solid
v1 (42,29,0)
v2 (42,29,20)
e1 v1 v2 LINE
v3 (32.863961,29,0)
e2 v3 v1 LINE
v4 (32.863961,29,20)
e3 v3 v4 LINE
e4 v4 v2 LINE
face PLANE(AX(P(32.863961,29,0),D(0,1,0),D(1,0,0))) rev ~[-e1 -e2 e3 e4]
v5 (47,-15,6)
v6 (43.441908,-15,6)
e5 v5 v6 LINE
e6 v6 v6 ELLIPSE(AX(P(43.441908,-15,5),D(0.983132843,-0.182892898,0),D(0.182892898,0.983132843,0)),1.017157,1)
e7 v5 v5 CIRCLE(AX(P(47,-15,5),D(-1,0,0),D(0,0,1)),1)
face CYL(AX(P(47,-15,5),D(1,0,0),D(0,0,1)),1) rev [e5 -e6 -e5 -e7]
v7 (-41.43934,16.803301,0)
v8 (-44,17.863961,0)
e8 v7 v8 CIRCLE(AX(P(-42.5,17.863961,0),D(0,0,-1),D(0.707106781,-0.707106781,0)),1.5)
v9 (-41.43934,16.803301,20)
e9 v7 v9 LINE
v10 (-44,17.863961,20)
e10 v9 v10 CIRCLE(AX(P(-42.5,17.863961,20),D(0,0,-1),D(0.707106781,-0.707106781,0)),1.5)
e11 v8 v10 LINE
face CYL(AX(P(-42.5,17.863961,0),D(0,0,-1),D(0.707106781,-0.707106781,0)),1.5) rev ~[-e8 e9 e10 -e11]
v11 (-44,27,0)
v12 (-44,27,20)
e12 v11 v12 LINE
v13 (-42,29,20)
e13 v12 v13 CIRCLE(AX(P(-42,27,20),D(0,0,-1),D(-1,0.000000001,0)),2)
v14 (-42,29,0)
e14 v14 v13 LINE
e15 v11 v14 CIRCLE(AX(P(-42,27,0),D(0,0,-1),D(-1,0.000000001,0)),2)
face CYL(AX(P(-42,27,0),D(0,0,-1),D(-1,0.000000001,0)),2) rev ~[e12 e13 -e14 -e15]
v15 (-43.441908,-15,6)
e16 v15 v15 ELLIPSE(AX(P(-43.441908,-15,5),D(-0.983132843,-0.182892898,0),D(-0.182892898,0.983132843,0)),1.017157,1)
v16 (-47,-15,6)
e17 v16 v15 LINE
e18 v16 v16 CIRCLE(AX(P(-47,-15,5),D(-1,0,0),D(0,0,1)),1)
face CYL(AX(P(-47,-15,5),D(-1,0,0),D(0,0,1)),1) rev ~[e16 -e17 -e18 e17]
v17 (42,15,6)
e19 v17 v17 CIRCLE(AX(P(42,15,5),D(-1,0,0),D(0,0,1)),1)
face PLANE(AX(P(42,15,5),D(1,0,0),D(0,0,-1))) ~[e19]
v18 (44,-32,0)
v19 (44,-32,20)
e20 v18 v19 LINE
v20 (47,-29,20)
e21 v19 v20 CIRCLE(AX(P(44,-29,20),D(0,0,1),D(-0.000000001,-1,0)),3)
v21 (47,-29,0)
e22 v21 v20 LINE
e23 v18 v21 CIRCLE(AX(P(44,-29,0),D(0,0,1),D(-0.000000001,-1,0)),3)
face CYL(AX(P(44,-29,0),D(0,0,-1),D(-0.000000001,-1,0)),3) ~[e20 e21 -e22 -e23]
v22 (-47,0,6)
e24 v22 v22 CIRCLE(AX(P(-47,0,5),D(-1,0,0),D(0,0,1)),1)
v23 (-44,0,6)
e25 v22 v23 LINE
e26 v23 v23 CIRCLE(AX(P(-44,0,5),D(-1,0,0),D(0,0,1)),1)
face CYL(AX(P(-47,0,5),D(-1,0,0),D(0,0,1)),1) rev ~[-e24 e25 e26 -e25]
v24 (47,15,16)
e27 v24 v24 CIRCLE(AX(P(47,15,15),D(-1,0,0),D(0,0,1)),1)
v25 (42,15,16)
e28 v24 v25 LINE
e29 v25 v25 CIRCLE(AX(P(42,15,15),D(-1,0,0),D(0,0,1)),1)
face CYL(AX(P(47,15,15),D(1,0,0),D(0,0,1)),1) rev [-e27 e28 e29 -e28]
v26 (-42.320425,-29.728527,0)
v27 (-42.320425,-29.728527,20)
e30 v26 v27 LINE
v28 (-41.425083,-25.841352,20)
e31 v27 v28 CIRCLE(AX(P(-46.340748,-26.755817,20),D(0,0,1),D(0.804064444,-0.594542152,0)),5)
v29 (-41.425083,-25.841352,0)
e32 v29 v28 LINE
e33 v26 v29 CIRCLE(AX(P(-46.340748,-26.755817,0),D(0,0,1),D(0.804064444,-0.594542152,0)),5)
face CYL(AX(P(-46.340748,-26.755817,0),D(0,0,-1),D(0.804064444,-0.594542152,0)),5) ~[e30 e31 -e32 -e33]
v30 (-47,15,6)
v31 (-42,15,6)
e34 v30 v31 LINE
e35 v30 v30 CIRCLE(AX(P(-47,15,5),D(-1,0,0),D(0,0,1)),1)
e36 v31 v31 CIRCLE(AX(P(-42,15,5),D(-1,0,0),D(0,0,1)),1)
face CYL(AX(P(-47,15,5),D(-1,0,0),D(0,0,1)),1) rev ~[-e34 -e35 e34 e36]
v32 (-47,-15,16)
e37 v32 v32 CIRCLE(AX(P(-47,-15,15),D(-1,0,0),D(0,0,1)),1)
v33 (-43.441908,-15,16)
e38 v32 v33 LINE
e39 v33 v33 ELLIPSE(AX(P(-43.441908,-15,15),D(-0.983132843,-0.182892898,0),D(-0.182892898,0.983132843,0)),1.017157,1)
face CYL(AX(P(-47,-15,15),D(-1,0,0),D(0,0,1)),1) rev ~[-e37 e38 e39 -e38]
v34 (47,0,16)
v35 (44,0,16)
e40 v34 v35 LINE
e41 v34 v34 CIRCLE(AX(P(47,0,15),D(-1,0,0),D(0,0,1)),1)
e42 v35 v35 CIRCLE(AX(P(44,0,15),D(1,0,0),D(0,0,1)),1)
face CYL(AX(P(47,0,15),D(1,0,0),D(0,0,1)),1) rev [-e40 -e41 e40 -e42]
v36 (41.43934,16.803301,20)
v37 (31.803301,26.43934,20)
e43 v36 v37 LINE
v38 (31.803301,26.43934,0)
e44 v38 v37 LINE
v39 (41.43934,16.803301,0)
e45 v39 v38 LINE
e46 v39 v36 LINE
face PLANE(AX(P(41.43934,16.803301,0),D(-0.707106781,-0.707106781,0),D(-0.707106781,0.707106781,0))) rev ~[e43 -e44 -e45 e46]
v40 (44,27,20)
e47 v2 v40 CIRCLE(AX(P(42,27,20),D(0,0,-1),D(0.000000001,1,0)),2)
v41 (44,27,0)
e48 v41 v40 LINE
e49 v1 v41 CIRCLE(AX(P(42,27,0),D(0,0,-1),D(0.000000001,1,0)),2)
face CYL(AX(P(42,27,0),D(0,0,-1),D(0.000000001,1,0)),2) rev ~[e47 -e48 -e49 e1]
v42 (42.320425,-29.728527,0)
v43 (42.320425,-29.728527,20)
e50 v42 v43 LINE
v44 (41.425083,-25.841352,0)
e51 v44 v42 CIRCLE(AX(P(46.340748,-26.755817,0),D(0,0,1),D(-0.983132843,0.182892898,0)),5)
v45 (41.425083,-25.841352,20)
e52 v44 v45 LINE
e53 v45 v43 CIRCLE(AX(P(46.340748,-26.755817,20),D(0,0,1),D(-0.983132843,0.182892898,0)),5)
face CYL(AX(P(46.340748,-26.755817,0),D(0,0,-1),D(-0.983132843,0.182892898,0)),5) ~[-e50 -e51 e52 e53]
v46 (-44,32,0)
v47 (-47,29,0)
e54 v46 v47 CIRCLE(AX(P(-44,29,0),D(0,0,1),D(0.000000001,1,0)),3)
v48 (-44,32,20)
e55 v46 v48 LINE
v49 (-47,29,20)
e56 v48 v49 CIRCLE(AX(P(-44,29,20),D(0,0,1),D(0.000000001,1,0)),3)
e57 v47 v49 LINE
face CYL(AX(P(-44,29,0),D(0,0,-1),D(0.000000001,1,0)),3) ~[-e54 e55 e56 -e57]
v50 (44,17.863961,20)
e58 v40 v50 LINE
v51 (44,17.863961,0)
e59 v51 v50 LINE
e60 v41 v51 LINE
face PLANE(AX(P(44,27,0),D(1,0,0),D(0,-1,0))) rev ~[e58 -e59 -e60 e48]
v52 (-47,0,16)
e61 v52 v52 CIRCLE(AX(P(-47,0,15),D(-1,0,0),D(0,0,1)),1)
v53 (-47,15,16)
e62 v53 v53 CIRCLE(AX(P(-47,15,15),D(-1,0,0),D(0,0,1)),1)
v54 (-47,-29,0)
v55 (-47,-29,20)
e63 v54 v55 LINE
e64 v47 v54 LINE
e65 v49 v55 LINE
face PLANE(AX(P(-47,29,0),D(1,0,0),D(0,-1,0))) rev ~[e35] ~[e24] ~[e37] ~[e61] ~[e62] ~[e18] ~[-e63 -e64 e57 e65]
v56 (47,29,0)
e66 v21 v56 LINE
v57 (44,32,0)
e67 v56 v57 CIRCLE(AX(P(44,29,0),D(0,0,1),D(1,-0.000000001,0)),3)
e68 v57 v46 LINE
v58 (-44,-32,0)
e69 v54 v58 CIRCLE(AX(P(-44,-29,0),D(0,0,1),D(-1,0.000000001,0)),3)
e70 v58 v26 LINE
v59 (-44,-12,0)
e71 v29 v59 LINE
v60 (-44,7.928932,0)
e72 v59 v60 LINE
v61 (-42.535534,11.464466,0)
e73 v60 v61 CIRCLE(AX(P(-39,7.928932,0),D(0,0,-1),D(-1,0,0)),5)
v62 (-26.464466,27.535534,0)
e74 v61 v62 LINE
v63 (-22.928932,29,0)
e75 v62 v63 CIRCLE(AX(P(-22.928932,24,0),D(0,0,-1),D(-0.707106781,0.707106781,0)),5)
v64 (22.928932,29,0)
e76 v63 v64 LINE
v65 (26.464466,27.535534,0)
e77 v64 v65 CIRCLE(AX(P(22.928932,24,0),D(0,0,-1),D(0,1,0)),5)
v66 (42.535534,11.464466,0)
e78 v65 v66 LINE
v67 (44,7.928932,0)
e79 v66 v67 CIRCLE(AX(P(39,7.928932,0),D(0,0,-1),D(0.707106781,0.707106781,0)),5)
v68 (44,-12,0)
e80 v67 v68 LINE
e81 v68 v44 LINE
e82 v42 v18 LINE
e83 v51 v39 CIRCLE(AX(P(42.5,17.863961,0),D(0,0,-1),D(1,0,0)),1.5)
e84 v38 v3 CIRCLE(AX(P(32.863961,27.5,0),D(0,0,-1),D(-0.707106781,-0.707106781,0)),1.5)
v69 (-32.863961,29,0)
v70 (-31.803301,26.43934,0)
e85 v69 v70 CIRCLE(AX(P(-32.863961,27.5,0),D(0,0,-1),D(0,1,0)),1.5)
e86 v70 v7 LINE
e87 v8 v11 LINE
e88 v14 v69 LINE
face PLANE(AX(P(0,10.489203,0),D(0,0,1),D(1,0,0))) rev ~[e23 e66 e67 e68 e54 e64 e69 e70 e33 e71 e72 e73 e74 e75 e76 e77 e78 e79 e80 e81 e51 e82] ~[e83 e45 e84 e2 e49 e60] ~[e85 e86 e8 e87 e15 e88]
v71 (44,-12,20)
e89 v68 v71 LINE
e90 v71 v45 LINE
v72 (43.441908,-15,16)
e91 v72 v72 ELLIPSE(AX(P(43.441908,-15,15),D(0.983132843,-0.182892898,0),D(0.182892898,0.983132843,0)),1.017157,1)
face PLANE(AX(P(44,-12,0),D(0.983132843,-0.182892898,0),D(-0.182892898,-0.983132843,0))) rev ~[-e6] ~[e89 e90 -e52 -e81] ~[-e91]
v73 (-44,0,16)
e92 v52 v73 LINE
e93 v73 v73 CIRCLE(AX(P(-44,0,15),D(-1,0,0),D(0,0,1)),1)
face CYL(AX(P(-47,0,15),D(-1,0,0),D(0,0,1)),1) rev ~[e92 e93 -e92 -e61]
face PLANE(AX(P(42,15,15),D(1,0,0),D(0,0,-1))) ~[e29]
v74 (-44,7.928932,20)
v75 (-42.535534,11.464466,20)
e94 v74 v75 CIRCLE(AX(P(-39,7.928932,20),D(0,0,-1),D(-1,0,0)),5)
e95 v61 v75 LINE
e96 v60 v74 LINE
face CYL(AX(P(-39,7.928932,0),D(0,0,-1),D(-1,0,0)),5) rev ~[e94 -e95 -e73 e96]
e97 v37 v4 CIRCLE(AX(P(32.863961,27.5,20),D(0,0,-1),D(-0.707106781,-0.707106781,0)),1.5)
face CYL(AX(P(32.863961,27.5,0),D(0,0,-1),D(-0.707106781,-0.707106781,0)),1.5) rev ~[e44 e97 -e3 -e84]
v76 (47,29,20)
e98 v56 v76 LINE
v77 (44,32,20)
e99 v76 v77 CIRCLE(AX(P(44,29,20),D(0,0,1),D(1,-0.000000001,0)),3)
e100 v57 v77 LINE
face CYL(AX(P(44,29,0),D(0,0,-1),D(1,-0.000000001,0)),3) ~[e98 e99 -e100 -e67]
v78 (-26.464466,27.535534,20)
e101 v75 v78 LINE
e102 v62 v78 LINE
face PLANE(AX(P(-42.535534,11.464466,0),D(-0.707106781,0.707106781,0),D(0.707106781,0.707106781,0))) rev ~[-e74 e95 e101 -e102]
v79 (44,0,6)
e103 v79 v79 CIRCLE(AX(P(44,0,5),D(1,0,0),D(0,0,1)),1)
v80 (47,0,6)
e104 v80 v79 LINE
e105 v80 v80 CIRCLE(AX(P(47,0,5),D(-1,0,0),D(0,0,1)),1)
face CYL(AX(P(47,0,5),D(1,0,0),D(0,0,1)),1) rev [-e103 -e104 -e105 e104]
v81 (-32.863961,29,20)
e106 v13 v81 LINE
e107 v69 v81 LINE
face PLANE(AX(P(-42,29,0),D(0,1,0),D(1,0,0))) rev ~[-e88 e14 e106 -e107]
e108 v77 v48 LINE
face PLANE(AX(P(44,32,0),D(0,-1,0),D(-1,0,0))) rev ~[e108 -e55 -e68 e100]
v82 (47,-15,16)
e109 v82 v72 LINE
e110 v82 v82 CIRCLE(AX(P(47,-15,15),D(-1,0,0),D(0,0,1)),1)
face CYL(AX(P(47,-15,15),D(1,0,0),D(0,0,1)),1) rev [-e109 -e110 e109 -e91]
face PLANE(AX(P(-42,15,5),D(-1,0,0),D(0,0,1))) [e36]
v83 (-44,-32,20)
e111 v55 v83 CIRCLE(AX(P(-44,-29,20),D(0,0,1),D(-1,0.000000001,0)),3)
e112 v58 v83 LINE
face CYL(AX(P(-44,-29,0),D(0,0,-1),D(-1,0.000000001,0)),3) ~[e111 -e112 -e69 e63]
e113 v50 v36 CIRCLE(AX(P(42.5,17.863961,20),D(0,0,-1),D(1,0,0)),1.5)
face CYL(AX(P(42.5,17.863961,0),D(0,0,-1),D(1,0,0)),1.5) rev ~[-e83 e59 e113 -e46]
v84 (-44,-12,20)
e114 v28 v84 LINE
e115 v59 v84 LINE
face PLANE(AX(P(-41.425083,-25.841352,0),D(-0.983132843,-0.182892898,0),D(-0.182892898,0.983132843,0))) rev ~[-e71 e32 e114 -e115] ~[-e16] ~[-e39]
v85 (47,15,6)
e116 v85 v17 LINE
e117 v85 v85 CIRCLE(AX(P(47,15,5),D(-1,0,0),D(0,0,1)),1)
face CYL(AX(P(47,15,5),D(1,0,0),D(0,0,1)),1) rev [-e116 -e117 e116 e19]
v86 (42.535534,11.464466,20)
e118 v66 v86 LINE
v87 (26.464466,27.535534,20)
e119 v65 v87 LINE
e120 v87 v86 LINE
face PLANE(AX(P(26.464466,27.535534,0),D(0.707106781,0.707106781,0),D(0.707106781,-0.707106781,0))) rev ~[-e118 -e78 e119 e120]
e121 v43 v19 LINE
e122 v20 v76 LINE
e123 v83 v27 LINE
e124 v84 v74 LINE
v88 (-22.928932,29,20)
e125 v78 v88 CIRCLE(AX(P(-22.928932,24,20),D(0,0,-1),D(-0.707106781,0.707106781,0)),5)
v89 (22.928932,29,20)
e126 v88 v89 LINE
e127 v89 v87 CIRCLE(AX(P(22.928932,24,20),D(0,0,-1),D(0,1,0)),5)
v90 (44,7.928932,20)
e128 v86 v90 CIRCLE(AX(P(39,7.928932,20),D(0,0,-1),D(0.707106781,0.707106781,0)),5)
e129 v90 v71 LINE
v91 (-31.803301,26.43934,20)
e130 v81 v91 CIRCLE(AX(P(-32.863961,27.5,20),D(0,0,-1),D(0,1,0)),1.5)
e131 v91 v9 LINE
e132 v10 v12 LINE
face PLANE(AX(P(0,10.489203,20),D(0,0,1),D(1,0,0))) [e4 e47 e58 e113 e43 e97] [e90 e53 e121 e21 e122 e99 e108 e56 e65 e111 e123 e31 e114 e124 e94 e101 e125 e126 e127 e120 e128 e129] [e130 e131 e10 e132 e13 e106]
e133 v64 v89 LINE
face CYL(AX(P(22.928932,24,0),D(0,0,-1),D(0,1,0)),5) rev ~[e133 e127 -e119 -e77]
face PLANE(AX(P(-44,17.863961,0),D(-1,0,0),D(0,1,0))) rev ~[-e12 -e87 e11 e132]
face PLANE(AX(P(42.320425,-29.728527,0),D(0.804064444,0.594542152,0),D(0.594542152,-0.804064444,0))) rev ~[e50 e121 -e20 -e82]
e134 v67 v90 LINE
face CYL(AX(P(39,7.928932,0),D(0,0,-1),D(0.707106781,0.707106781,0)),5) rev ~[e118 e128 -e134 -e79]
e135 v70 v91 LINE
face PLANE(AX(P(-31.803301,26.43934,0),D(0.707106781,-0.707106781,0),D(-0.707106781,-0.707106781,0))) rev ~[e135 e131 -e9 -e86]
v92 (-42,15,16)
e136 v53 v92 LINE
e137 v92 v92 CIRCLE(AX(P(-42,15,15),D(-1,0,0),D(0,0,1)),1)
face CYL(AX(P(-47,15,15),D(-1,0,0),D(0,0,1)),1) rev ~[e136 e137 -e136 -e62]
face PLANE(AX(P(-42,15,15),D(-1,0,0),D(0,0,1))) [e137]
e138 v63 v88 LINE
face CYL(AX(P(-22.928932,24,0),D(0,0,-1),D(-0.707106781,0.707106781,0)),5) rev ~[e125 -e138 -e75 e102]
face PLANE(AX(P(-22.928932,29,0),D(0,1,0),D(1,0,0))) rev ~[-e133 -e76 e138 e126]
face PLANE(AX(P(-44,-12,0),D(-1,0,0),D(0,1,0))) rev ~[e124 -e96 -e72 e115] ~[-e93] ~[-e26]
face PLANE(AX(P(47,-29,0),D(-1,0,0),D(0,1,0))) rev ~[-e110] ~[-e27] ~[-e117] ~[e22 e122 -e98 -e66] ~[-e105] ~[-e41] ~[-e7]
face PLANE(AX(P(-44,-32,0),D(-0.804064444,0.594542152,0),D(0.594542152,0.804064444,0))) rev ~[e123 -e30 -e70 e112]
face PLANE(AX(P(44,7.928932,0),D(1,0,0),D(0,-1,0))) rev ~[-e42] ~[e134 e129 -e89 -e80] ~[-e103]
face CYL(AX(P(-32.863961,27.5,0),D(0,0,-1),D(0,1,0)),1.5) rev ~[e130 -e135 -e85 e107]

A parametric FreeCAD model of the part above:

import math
import FreeCAD as App
import Part
import Sketcher
Q = App.Units.Quantity

doc = App.newDocument("Part")
body = doc.addObject("PartDesign::Body", "Body")

sketch1 = doc.addObject("Sketcher::SketchObject", "Sketch")
body.addObject(sketch1)
sketch1.AttachmentSupport = (doc.XY_Plane, [""])
sketch1.MapMode = "FlatFace"
sketch1.addGeometry([
    Part.ArcOfCircle(Part.Circle(App.Vector(-44, -29, 0), App.Vector(0, 0, 1), 3), math.radians(180), math.radians(270)),
    Part.LineSegment(App.Vector(-44, -32, 0), App.Vector(-42.320425, -29.728527, 0)),
    Part.ArcOfCircle(Part.Circle(App.Vector(-46.340748, -26.755817, 0), App.Vector(0, 0, 1), 5), math.radians(-36.48), math.radians(10.538308)),
    Part.LineSegment(App.Vector(-41.425083, -25.841352, 0), App.Vector(-44, -12, 0)),
    Part.LineSegment(App.Vector(-44, -12, 0), App.Vector(-44, 7.928932, 0)),
    Part.ArcOfCircle(Part.Circle(App.Vector(-39, 7.928932, 0), App.Vector(0, 0, 1), 5), math.radians(135), math.radians(180)),
    Part.LineSegment(App.Vector(-42.535534, 11.464466, 0), App.Vector(-26.464466, 27.535534, 0)),
    Part.ArcOfCircle(Part.Circle(App.Vector(-22.928932, 24, 0), App.Vector(0, 0, 1), 5), math.radians(90), math.radians(135)),
    Part.LineSegment(App.Vector(-22.928932, 29, 0), App.Vector(22.928932, 29, 0)),
    Part.ArcOfCircle(Part.Circle(App.Vector(22.928932, 24, 0), App.Vector(0, 0, 1), 5), math.radians(45), math.radians(90)),
    Part.LineSegment(App.Vector(26.464466, 27.535534, 0), App.Vector(42.535534, 11.464466, 0)),
    Part.ArcOfCircle(Part.Circle(App.Vector(39, 7.928932, 0), App.Vector(0, 0, 1), 5), math.radians(0), math.radians(45)),
    Part.LineSegment(App.Vector(44, 7.928932, 0), App.Vector(44, -12, 0)),
    Part.LineSegment(App.Vector(44, -12, 0), App.Vector(41.425083, -25.841352, 0)),
    Part.ArcOfCircle(Part.Circle(App.Vector(46.340748, -26.755817, 0), App.Vector(0, 0, 1), 5), math.radians(169.461692), math.radians(216.48)),
    Part.LineSegment(App.Vector(42.320425, -29.728527, 0), App.Vector(44, -32, 0)),
    Part.ArcOfCircle(Part.Circle(App.Vector(44, -29, 0), App.Vector(0, 0, 1), 3), math.radians(-90), math.radians(0)),
    Part.LineSegment(App.Vector(47, -29, 0), App.Vector(47, 29, 0)),
    Part.ArcOfCircle(Part.Circle(App.Vector(44, 29, 0), App.Vector(0, 0, 1), 3), math.radians(0), math.radians(90)),
    Part.LineSegment(App.Vector(44, 32, 0), App.Vector(-44, 32, 0)),
    Part.ArcOfCircle(Part.Circle(App.Vector(-44, 29, 0), App.Vector(0, 0, 1), 3), math.radians(90), math.radians(180)),
    Part.LineSegment(App.Vector(-47, 29, 0), App.Vector(-47, -29, 0)),
    Part.LineSegment(App.Vector(-44, 17.863961, 0), App.Vector(-44, 27, 0)),
    Part.ArcOfCircle(Part.Circle(App.Vector(-42, 27, 0), App.Vector(0, 0, 1), 2), math.radians(90), math.radians(180)),
    Part.LineSegment(App.Vector(-42, 29, 0), App.Vector(-32.863961, 29, 0)),
    Part.ArcOfCircle(Part.Circle(App.Vector(-32.863961, 27.5, 0), App.Vector(0, 0, 1), 1.5), math.radians(-45), math.radians(90)),
    Part.LineSegment(App.Vector(-31.803301, 26.43934, 0), App.Vector(-41.43934, 16.803301, 0)),
    Part.ArcOfCircle(Part.Circle(App.Vector(-42.5, 17.863961, 0), App.Vector(0, 0, 1), 1.5), math.radians(180), math.radians(315)),
    Part.LineSegment(App.Vector(32.863961, 29, 0), App.Vector(42, 29, 0)),
    Part.ArcOfCircle(Part.Circle(App.Vector(42, 27, 0), App.Vector(0, 0, 1), 2), math.radians(0), math.radians(90)),
    Part.LineSegment(App.Vector(44, 27, 0), App.Vector(44, 17.863961, 0)),
    Part.ArcOfCircle(Part.Circle(App.Vector(42.5, 17.863961, 0), App.Vector(0, 0, 1), 1.5), math.radians(-135), math.radians(0)),
    Part.LineSegment(App.Vector(41.43934, 16.803301, 0), App.Vector(31.803301, 26.43934, 0)),
    Part.ArcOfCircle(Part.Circle(App.Vector(32.863961, 27.5, 0), App.Vector(0, 0, 1), 1.5), math.radians(90), math.radians(225)),
], False)
sketch1.addConstraint([
    Sketcher.Constraint("Coincident", 0, 2, 1, 1),
    Sketcher.Constraint("Tangent", 1, 2, 2, 1),
    Sketcher.Constraint("Tangent", 2, 2, 3, 1),
    Sketcher.Constraint("Coincident", 3, 2, 4, 1),
    Sketcher.Constraint("Tangent", 4, 2, 5, 2),
    Sketcher.Constraint("Tangent", 5, 1, 6, 1),
    Sketcher.Constraint("Tangent", 6, 2, 7, 2),
    Sketcher.Constraint("Tangent", 7, 1, 8, 1),
    Sketcher.Constraint("Tangent", 8, 2, 9, 2),
    Sketcher.Constraint("Tangent", 9, 1, 10, 1),
    Sketcher.Constraint("Tangent", 10, 2, 11, 2),
    Sketcher.Constraint("Tangent", 11, 1, 12, 1),
    Sketcher.Constraint("Coincident", 12, 2, 13, 1),
    Sketcher.Constraint("Tangent", 13, 2, 14, 1),
    Sketcher.Constraint("Tangent", 14, 2, 15, 1),
    Sketcher.Constraint("Coincident", 15, 2, 16, 1),
    Sketcher.Constraint("Tangent", 16, 2, 17, 1),
    Sketcher.Constraint("Tangent", 17, 2, 18, 1),
    Sketcher.Constraint("Tangent", 18, 2, 19, 1),
    Sketcher.Constraint("Tangent", 19, 2, 20, 1),
    Sketcher.Constraint("Tangent", 20, 2, 21, 1),
    Sketcher.Constraint("Tangent", 21, 2, 0, 1),
    Sketcher.Constraint("Tangent", 22, 2, 23, 2),
    Sketcher.Constraint("Tangent", 23, 1, 24, 1),
    Sketcher.Constraint("Tangent", 24, 2, 25, 2),
    Sketcher.Constraint("Tangent", 25, 1, 26, 1),
    Sketcher.Constraint("Tangent", 26, 2, 27, 2),
    Sketcher.Constraint("Tangent", 27, 1, 22, 1),
    Sketcher.Constraint("Tangent", 28, 2, 29, 2),
    Sketcher.Constraint("Tangent", 29, 1, 30, 1),
    Sketcher.Constraint("Tangent", 30, 2, 31, 2),
    Sketcher.Constraint("Tangent", 31, 1, 32, 1),
    Sketcher.Constraint("Tangent", 32, 2, 33, 2),
    Sketcher.Constraint("Tangent", 33, 1, 28, 1),
    Sketcher.Constraint("Vertical", 4),
    Sketcher.Constraint("Horizontal", 8),
    Sketcher.Constraint("Vertical", 12),
    Sketcher.Constraint("Vertical", 17),
    Sketcher.Constraint("Horizontal", 19),
    Sketcher.Constraint("Vertical", 21),
    Sketcher.Constraint("Vertical", 22),
    Sketcher.Constraint("Horizontal", 24),
    Sketcher.Constraint("Horizontal", 28),
    Sketcher.Constraint("Vertical", 30),
    Sketcher.Constraint("Equal", 2, 5),
    Sketcher.Constraint("Equal", 5, 7),
    Sketcher.Constraint("Equal", 7, 9),
    Sketcher.Constraint("Equal", 9, 11),
    Sketcher.Constraint("Equal", 11, 14),
    Sketcher.Constraint("Equal", 0, 16),
    Sketcher.Constraint("Equal", 16, 18),
    Sketcher.Constraint("Equal", 18, 20),
    Sketcher.Constraint("Equal", 25, 27),
    Sketcher.Constraint("Equal", 23, 29),
    Sketcher.Constraint("Equal", 27, 31),
    Sketcher.Constraint("Equal", 31, 33),
    Sketcher.Constraint("Symmetric", 0, 3, 18, 3, -1, 1),
    Sketcher.Constraint("Symmetric", 15, 2, 19, 2, -1, 1),
    Sketcher.Constraint("Symmetric", 5, 3, 11, 3, -2),
    Sketcher.Constraint("Symmetric", 2, 3, 14, 3, -2),
    Sketcher.Constraint("Symmetric", 23, 3, 29, 3, -2),
    Sketcher.Constraint("Symmetric", 26, 2, 31, 1, -2),
    Sketcher.Constraint("Perpendicular", 6, 10),
    Sketcher.Constraint("Perpendicular", 10, 26),
    Sketcher.Constraint("Perpendicular", 26, 32),
    Sketcher.Constraint("Horizontal", 20, 3, 7, 1),
    Sketcher.Constraint("Horizontal", 3, 2, 12, 2),
    Sketcher.Constraint("Horizontal", 1, 2, 14, 2),
    Sketcher.Constraint("Horizontal", 20, 2, 23, 1),
    Sketcher.Constraint("Vertical", 0, 2, 3, 2),
    Sketcher.Constraint("Vertical", 19, 2, 22, 2),
    Sketcher.Constraint("Radius", 0, 3.0),
    Sketcher.Constraint("Radius", 2, 5.0),
    Sketcher.Constraint("Radius", 23, 2.0),
    Sketcher.Constraint("Radius", 25, 1.5),
    Sketcher.Constraint("DistanceX", 19, 2, 19, 1, 88.0),
    Sketcher.Constraint("DistanceY", 17, 1, 17, 2, 58.0),
    Sketcher.Constraint("DistanceY", 3, 2, -1, 1, 12.0),
    Sketcher.Constraint("Angle", 1, Q("53.52 deg")),
    Sketcher.Constraint("DistanceX", 24, 1, 24, 2, 9.136039),
    Sketcher.Constraint("Distance", 1, 2.824988),
    Sketcher.Constraint("DistanceX", 8, 1, 8, 2, 45.857864),
])
pad1 = doc.addObject("PartDesign::Pad", "Pad")
body.addObject(pad1)
pad1.Profile = sketch1
pad1.Length = 20

sketch2 = doc.addObject("Sketcher::SketchObject", "Sketch001")
body.addObject(sketch2)
sketch2.AttachmentSupport = (doc.YZ_Plane, [""])
sketch2.MapMode = "FlatFace"
sketch2.AttachmentOffset = App.Placement(App.Vector(0, 0, -47), App.Rotation())
sketch2.addGeometry([
    Part.Circle(App.Vector(15, 5, 0), App.Vector(0, 0, 1), 1),
    Part.Circle(App.Vector(15, 15, 0), App.Vector(0, 0, 1), 1),
    Part.Circle(App.Vector(0, 15, 0), App.Vector(0, 0, 1), 1),
    Part.Circle(App.Vector(-15, 15, 0), App.Vector(0, 0, 1), 1),
    Part.Circle(App.Vector(0, 5, 0), App.Vector(0, 0, 1), 1),
    Part.Circle(App.Vector(-15, 5, 0), App.Vector(0, 0, 1), 1),
], False)
sketch2.addConstraint([
    Sketcher.Constraint("Equal", 0, 1),
    Sketcher.Constraint("Equal", 1, 2),
    Sketcher.Constraint("Equal", 2, 3),
    Sketcher.Constraint("Equal", 3, 4),
    Sketcher.Constraint("Equal", 4, 5),
    Sketcher.Constraint("Symmetric", 1, 3, 3, 3, -2),
    Sketcher.Constraint("Symmetric", 0, 3, 5, 3, -2),
    Sketcher.Constraint("PointOnObject", 2, 3, -2),
    Sketcher.Constraint("PointOnObject", 4, 3, -2),
    Sketcher.Constraint("Horizontal", 1, 3, 2, 3),
    Sketcher.Constraint("Horizontal", 0, 3, 4, 3),
    Sketcher.Constraint("Vertical", 0, 3, 1, 3),
    Sketcher.Constraint("Diameter", 0, 2.0),
    Sketcher.Constraint("DistanceX", -1, 1, 0, 3, 15.0),
    Sketcher.Constraint("DistanceY", -1, 1, 0, 3, 5.0),
    Sketcher.Constraint("DistanceY", -1, 1, 1, 3, 15.0),
])
pocket1 = doc.addObject("PartDesign::Pocket", "Pocket")
body.addObject(pocket1)
pocket1.Profile = sketch2
pocket1.Length = 5
pocket1.Reversed = True
doc.recompute()

mirrored = doc.addObject("PartDesign::Mirrored", "Mirrored")
body.addObject(mirrored)
mirrored.Originals = [pocket1]
mirrored.MirrorPlane = (doc.YZ_Plane, [""])
body.Tip = mirrored

doc.recompute()
